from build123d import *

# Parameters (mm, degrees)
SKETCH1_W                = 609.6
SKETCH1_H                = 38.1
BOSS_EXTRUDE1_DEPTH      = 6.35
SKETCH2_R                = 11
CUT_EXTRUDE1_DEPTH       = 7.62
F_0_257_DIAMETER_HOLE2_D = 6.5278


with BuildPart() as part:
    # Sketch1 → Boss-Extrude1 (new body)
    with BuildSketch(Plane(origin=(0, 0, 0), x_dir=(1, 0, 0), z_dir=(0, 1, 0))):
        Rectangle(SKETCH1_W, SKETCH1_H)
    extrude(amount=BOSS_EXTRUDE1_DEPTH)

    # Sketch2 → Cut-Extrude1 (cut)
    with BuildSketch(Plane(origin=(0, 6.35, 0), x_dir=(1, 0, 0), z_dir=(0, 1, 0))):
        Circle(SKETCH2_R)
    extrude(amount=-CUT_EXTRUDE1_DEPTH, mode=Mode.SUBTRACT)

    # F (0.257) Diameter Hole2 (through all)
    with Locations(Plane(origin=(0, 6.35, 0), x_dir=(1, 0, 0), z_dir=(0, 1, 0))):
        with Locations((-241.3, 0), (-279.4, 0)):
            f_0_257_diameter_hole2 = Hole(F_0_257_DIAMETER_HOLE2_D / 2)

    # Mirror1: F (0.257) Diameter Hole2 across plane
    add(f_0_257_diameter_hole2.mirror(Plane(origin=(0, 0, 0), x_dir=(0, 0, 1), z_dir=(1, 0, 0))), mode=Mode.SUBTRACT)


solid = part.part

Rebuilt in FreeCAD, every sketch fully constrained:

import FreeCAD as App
import Part
import Sketcher
Q = App.Units.Quantity


def add_polygon(sketch, points):
    """Adds a closed chain of lines whose ends are joined by coincident constraints."""
    first, n = sketch.GeometryCount, len(points)
    for a, b in zip(points, points[1:] + points[:1]):
        sketch.addGeometry(Part.LineSegment(App.Vector(*a, 0), App.Vector(*b, 0)), False)
    for i in range(n):
        sketch.addConstraint(Sketcher.Constraint("Coincident", first + i, 2, first + (i + 1) % n, 1))

doc = App.newDocument("Part")
body = doc.addObject("PartDesign::Body", "Body")

# Sketch on XZ plane
sketch1 = body.newObject("Sketcher::SketchObject", "Sketch")
sketch1.AttachmentSupport = (doc.getObject("XZ_Plane"), [""])
sketch1.MapMode = "FlatFace"
add_polygon(sketch1, [(-304.8, -19.05), (-304.8, 19.05), (304.8, 19.05), (304.8, -19.05)])  # lines 0-3
sketch1.addConstraint([
    Sketcher.Constraint("Vertical", 0),
    Sketcher.Constraint("Horizontal", 1),
    Sketcher.Constraint("Vertical", 2),
    Sketcher.Constraint("Horizontal", 3),
    Sketcher.Constraint("Symmetric", 0, 2, 2, 2, -1, 1),
    Sketcher.Constraint("DistanceX", 1, 1, 1, 2, Q("24 in")),
    Sketcher.Constraint("DistanceY", 0, 1, 0, 2, Q("1.5 in")),
])
pad1 = body.newObject("PartDesign::Pad", "Pad")
pad1.Profile = sketch1
pad1.Length = Q("0.25 in")
pad1.Reversed = True

# Sketch on XZ plane
sketch2 = body.newObject("Sketcher::SketchObject", "Sketch001")
sketch2.AttachmentSupport = (doc.getObject("XZ_Plane"), [""])
sketch2.MapMode = "FlatFace"
sketch2.AttachmentOffset = App.Placement(App.Vector(0, 0, -0.25 * 25.4), App.Rotation())
sketch2.addGeometry(Part.Circle(App.Vector(0, 0, 0), App.Vector(0, 0, 1), 11), False)
sketch2.addConstraint([
    Sketcher.Constraint("Coincident", 0, 3, -1, 1),
    Sketcher.Constraint("Diameter", 0, Q("22 mm")),
])
pocket1 = body.newObject("PartDesign::Pocket", "Pocket")
pocket1.Profile = sketch2
pocket1.Length = Q("0.3 in")
pocket1.Reversed = True

# Sketch on XZ plane
sketch3 = body.newObject("Sketcher::SketchObject", "Sketch002")
sketch3.AttachmentSupport = (doc.getObject("XZ_Plane"), [""])
sketch3.MapMode = "FlatFace"
sketch3.AttachmentOffset = App.Placement(App.Vector(0, 0, -0.25 * 25.4), App.Rotation())
sketch3.addGeometry([
    Part.Circle(App.Vector(-241.3, 0, 0), App.Vector(0, 0, 1), 3.2639),
    Part.Circle(App.Vector(-279.4, 0, 0), App.Vector(0, 0, 1), 3.2639),
], False)
sketch3.addConstraint([
    Sketcher.Constraint("Equal", 0, 1),
    Sketcher.Constraint("PointOnObject", 0, 3, -1),
    Sketcher.Constraint("PointOnObject", 1, 3, -1),
    Sketcher.Constraint("Diameter", 0, Q("0.257 in")),
    Sketcher.Constraint("DistanceX", 1, 3, -1, 1, Q("11 in")),
    Sketcher.Constraint("DistanceX", 0, 3, -1, 1, Q("9.5 in")),
])
doc.recompute()
hole = body.newObject("PartDesign::Hole", "Hole")
hole.Profile = sketch3
hole.ThreadType = "None"
hole.Diameter = Q("0.257 in")
hole.DepthType = "ThroughAll"
hole.Reversed = True
doc.recompute()

mirrored = body.newObject("PartDesign::Mirrored", "Mirrored")
mirrored.Originals = [hole]
mirrored.MirrorPlane = (doc.getObject("YZ_Plane"), [""])
body.Tip = mirrored

doc.recompute()
